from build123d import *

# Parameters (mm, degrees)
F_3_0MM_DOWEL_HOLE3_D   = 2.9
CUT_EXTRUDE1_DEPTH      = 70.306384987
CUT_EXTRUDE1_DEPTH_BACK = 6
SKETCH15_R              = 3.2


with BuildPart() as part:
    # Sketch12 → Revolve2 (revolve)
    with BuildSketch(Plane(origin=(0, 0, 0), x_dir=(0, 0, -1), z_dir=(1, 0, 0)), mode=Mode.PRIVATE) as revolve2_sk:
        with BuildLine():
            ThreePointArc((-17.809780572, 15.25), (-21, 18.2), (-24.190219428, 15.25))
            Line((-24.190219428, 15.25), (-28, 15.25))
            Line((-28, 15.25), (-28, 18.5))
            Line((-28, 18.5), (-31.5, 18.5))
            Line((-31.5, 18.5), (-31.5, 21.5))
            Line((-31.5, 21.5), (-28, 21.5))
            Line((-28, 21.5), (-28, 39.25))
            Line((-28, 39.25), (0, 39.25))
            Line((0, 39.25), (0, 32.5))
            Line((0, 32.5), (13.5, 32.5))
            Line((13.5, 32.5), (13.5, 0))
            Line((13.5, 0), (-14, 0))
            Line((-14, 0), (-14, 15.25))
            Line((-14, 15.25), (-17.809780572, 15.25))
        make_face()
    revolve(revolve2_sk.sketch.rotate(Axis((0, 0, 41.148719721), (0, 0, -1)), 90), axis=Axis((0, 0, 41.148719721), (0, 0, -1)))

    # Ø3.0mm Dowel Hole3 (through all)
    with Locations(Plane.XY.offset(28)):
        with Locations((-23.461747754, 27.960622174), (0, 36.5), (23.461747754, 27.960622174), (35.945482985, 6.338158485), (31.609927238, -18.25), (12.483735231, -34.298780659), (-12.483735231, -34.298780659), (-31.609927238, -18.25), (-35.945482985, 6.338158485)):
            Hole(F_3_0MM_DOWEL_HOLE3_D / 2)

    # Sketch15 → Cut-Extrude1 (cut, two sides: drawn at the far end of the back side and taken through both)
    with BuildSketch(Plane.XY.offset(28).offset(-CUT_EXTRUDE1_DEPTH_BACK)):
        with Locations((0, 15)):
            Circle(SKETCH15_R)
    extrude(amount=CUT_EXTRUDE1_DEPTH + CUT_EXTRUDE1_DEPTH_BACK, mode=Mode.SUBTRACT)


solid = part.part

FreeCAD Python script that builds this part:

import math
import FreeCAD as App
import Part
import Sketcher
from FreeCAD import Vector

doc = App.newDocument("Part")
body = doc.addObject("PartDesign::Body", "Body")

sketch1 = body.newObject("Sketcher::SketchObject", "Sketch")
sketch1.AttachmentSupport = (doc.getObject("YZ_Plane"), [""])
sketch1.MapMode = "FlatFace"
sketch1.addGeometry([
    Part.ArcOfCircle(Part.Circle(Vector(15, 21, 0), Vector(0, 0, 1), 3.2), math.radians(-86), math.radians(86)),
    Part.LineSegment(Vector(15.2, 17.8, 0), Vector(15.2, 14, 0)),
    Part.LineSegment(Vector(15.2, 14, 0), Vector(0, 14, 0)),
    Part.LineSegment(Vector(0, 14, 0), Vector(0, -13.5, 0)),
    Part.LineSegment(Vector(0, -13.5, 0), Vector(32.5, -13.5, 0)),
    Part.LineSegment(Vector(32.5, -13.5, 0), Vector(32.5, 0, 0)),
    Part.LineSegment(Vector(32.5, 0, 0), Vector(39.2, 0, 0)),
    Part.LineSegment(Vector(39.2, 0, 0), Vector(39.2, 28, 0)),
    Part.LineSegment(Vector(39.2, 28, 0), Vector(21.5, 28, 0)),
    Part.LineSegment(Vector(21.5, 28, 0), Vector(21.5, 31.5, 0)),
    Part.LineSegment(Vector(21.5, 31.5, 0), Vector(18.5, 31.5, 0)),
    Part.LineSegment(Vector(18.5, 31.5, 0), Vector(18.5, 28, 0)),
    Part.LineSegment(Vector(18.5, 28, 0), Vector(15.2, 28, 0)),
    Part.LineSegment(Vector(15.2, 28, 0), Vector(15.2, 24.2, 0)),
], False)
sketch1.addConstraint([
    Sketcher.Constraint("Coincident", 0, 1, 1, 1),
    Sketcher.Constraint("Coincident", 1, 2, 2, 1),
    Sketcher.Constraint("Coincident", 2, 2, 3, 1),
    Sketcher.Constraint("Coincident", 3, 2, 4, 1),
    Sketcher.Constraint("Coincident", 4, 2, 5, 1),
    Sketcher.Constraint("Coincident", 5, 2, 6, 1),
    Sketcher.Constraint("Coincident", 6, 2, 7, 1),
    Sketcher.Constraint("Coincident", 7, 2, 8, 1),
    Sketcher.Constraint("Coincident", 8, 2, 9, 1),
    Sketcher.Constraint("Coincident", 9, 2, 10, 1),
    Sketcher.Constraint("Coincident", 10, 2, 11, 1),
    Sketcher.Constraint("Coincident", 11, 2, 12, 1),
    Sketcher.Constraint("Coincident", 12, 2, 13, 1),
    Sketcher.Constraint("Coincident", 13, 2, 0, 2),
    Sketcher.Constraint("Vertical", 1),
    Sketcher.Constraint("Horizontal", 2),
    Sketcher.Constraint("Vertical", 3),
    Sketcher.Constraint("Horizontal", 4),
    Sketcher.Constraint("Vertical", 5),
    Sketcher.Constraint("Horizontal", 6),
    Sketcher.Constraint("Vertical", 7),
    Sketcher.Constraint("Horizontal", 8),
    Sketcher.Constraint("Vertical", 9),
    Sketcher.Constraint("Horizontal", 10),
    Sketcher.Constraint("Vertical", 11),
    Sketcher.Constraint("Horizontal", 12),
    Sketcher.Constraint("Vertical", 13),
    Sketcher.Constraint("PointOnObject", 2, 2, -2),
    Sketcher.Constraint("PointOnObject", 5, 2, -1),
    Sketcher.Constraint("Horizontal", 8, 2, 11, 2),
    Sketcher.Constraint("Vertical", 1, 2, 12, 2),
    Sketcher.Constraint("Equal", 1, 13),
    Sketcher.Constraint("Radius", 0, 3.2),
    Sketcher.Constraint("DistanceX", 10, 2, 10, 1, 3.0),
    Sketcher.Constraint("DistanceY", 7, 1, 7, 2, 28.0),
    Sketcher.Constraint("DistanceX", 4, 1, 4, 2, 32.5),
    Sketcher.Constraint("DistanceY", 3, 2, 3, 1, 27.5),
    Sketcher.Constraint("DistanceY", 5, 1, 5, 2, 13.5),
    Sketcher.Constraint("DistanceY", 9, 1, 9, 2, 3.5),
    Sketcher.Constraint("DistanceX", -1, 1, 0, 3, 15.0),
    Sketcher.Constraint("DistanceX", 1, 2, 6, 2, 24.0),
    Sketcher.Constraint("DistanceX", 2, 2, 2, 1, 15.25),
    Sketcher.Constraint("DistanceX", 8, 2, 8, 1, 17.75),
])
revolution = body.newObject("PartDesign::Revolution", "Revolution")
revolution.Profile = sketch1
revolution.ReferenceAxis = (sketch1, ["V_Axis"])
revolution.Angle = 360

sketch2 = body.newObject("Sketcher::SketchObject", "Sketch001")
sketch2.AttachmentSupport = (doc.getObject("XY_Plane"), [""])
sketch2.MapMode = "FlatFace"
sketch2.AttachmentOffset = App.Placement(Vector(0, 0, 28), App.Rotation())
sketch2.addGeometry([
    Part.Circle(Vector(-23.5, 28, 0), Vector(0, 0, 1), 1.4),
    Part.Circle(Vector(0, 36.5, 0), Vector(0, 0, 1), 1.4),
    Part.Circle(Vector(23.5, 28, 0), Vector(0, 0, 1), 1.4),
    Part.Circle(Vector(35.9, 6.3, 0), Vector(0, 0, 1), 1.4),
    Part.Circle(Vector(31.6, -18.2, 0), Vector(0, 0, 1), 1.4),
    Part.Circle(Vector(12.5, -34.3, 0), Vector(0, 0, 1), 1.4),
    Part.Circle(Vector(-12.5, -34.3, 0), Vector(0, 0, 1), 1.4),
    Part.Circle(Vector(-31.6, -18.2, 0), Vector(0, 0, 1), 1.4),
    Part.Circle(Vector(-35.9, 6.3, 0), Vector(0, 0, 1), 1.4),
], False)
sketch2.addConstraint([
    Sketcher.Constraint("Equal", 0, 1),
    Sketcher.Constraint("Equal", 1, 2),
    Sketcher.Constraint("Equal", 2, 3),
    Sketcher.Constraint("Equal", 3, 4),
    Sketcher.Constraint("Equal", 4, 5),
    Sketcher.Constraint("Equal", 5, 6),
    Sketcher.Constraint("Equal", 6, 7),
    Sketcher.Constraint("Equal", 7, 8),
    Sketcher.Constraint("Symmetric", 0, 3, 2, 3, -2),
    Sketcher.Constraint("Symmetric", 5, 3, 6, 3, -2),
    Sketcher.Constraint("Symmetric", 4, 3, 7, 3, -2),
    Sketcher.Constraint("Symmetric", 3, 3, 8, 3, -2),
    Sketcher.Constraint("PointOnObject", 1, 3, -2),
    Sketcher.Constraint("Diameter", 0, 2.9),
    Sketcher.Constraint("DistanceY", -1, 1, 1, 3, 36.5),
    Sketcher.Constraint("DistanceY", 4, 3, -1, 1, 18.25),
    Sketcher.Constraint("DistanceY", -1, 1, 3, 3, 6.338158),
    Sketcher.Constraint("DistanceY", 5, 3, -1, 1, 34.298781),
    Sketcher.Constraint("DistanceX", 0, 3, 3, 3, 59.407231),
    Sketcher.Constraint("DistanceX", 2, 3, 4, 3, 8.148179),
    Sketcher.Constraint("DistanceX", 6, 3, 5, 3, 24.96747),
    Sketcher.Constraint("DistanceX", 6, 3, 3, 3, 48.429218),
    Sketcher.Constraint("DistanceY", -1, 1, 0, 3, 27.960622),
])
doc.recompute()
hole = body.newObject("PartDesign::Hole", "Hole")
hole.Profile = sketch2
hole.ThreadType = "None"
hole.Diameter = 2.9
hole.DepthType = "ThroughAll"

sketch3 = body.newObject("Sketcher::SketchObject", "Sketch002")
sketch3.AttachmentSupport = (doc.getObject("XY_Plane"), [""])
sketch3.MapMode = "FlatFace"
sketch3.AttachmentOffset = App.Placement(Vector(0, 0, 28), App.Rotation())
sketch3.addGeometry(Part.Circle(Vector(0, 15, 0), Vector(0, 0, 1), 3.2), False)
sketch3.addConstraint([
    Sketcher.Constraint("PointOnObject", 0, 3, -2),
    Sketcher.Constraint("Diameter", 0, 6.4),
    Sketcher.Constraint("DistanceY", -1, 1, 0, 3, 15.0),
])
pocket1 = body.newObject("PartDesign::Pocket", "Pocket")
pocket1.Profile = sketch3
pocket1.Type = "TwoLengths"
pocket1.Length = 70.306385
pocket1.Length2 = 6
pocket1.Reversed = True

doc.recompute()
